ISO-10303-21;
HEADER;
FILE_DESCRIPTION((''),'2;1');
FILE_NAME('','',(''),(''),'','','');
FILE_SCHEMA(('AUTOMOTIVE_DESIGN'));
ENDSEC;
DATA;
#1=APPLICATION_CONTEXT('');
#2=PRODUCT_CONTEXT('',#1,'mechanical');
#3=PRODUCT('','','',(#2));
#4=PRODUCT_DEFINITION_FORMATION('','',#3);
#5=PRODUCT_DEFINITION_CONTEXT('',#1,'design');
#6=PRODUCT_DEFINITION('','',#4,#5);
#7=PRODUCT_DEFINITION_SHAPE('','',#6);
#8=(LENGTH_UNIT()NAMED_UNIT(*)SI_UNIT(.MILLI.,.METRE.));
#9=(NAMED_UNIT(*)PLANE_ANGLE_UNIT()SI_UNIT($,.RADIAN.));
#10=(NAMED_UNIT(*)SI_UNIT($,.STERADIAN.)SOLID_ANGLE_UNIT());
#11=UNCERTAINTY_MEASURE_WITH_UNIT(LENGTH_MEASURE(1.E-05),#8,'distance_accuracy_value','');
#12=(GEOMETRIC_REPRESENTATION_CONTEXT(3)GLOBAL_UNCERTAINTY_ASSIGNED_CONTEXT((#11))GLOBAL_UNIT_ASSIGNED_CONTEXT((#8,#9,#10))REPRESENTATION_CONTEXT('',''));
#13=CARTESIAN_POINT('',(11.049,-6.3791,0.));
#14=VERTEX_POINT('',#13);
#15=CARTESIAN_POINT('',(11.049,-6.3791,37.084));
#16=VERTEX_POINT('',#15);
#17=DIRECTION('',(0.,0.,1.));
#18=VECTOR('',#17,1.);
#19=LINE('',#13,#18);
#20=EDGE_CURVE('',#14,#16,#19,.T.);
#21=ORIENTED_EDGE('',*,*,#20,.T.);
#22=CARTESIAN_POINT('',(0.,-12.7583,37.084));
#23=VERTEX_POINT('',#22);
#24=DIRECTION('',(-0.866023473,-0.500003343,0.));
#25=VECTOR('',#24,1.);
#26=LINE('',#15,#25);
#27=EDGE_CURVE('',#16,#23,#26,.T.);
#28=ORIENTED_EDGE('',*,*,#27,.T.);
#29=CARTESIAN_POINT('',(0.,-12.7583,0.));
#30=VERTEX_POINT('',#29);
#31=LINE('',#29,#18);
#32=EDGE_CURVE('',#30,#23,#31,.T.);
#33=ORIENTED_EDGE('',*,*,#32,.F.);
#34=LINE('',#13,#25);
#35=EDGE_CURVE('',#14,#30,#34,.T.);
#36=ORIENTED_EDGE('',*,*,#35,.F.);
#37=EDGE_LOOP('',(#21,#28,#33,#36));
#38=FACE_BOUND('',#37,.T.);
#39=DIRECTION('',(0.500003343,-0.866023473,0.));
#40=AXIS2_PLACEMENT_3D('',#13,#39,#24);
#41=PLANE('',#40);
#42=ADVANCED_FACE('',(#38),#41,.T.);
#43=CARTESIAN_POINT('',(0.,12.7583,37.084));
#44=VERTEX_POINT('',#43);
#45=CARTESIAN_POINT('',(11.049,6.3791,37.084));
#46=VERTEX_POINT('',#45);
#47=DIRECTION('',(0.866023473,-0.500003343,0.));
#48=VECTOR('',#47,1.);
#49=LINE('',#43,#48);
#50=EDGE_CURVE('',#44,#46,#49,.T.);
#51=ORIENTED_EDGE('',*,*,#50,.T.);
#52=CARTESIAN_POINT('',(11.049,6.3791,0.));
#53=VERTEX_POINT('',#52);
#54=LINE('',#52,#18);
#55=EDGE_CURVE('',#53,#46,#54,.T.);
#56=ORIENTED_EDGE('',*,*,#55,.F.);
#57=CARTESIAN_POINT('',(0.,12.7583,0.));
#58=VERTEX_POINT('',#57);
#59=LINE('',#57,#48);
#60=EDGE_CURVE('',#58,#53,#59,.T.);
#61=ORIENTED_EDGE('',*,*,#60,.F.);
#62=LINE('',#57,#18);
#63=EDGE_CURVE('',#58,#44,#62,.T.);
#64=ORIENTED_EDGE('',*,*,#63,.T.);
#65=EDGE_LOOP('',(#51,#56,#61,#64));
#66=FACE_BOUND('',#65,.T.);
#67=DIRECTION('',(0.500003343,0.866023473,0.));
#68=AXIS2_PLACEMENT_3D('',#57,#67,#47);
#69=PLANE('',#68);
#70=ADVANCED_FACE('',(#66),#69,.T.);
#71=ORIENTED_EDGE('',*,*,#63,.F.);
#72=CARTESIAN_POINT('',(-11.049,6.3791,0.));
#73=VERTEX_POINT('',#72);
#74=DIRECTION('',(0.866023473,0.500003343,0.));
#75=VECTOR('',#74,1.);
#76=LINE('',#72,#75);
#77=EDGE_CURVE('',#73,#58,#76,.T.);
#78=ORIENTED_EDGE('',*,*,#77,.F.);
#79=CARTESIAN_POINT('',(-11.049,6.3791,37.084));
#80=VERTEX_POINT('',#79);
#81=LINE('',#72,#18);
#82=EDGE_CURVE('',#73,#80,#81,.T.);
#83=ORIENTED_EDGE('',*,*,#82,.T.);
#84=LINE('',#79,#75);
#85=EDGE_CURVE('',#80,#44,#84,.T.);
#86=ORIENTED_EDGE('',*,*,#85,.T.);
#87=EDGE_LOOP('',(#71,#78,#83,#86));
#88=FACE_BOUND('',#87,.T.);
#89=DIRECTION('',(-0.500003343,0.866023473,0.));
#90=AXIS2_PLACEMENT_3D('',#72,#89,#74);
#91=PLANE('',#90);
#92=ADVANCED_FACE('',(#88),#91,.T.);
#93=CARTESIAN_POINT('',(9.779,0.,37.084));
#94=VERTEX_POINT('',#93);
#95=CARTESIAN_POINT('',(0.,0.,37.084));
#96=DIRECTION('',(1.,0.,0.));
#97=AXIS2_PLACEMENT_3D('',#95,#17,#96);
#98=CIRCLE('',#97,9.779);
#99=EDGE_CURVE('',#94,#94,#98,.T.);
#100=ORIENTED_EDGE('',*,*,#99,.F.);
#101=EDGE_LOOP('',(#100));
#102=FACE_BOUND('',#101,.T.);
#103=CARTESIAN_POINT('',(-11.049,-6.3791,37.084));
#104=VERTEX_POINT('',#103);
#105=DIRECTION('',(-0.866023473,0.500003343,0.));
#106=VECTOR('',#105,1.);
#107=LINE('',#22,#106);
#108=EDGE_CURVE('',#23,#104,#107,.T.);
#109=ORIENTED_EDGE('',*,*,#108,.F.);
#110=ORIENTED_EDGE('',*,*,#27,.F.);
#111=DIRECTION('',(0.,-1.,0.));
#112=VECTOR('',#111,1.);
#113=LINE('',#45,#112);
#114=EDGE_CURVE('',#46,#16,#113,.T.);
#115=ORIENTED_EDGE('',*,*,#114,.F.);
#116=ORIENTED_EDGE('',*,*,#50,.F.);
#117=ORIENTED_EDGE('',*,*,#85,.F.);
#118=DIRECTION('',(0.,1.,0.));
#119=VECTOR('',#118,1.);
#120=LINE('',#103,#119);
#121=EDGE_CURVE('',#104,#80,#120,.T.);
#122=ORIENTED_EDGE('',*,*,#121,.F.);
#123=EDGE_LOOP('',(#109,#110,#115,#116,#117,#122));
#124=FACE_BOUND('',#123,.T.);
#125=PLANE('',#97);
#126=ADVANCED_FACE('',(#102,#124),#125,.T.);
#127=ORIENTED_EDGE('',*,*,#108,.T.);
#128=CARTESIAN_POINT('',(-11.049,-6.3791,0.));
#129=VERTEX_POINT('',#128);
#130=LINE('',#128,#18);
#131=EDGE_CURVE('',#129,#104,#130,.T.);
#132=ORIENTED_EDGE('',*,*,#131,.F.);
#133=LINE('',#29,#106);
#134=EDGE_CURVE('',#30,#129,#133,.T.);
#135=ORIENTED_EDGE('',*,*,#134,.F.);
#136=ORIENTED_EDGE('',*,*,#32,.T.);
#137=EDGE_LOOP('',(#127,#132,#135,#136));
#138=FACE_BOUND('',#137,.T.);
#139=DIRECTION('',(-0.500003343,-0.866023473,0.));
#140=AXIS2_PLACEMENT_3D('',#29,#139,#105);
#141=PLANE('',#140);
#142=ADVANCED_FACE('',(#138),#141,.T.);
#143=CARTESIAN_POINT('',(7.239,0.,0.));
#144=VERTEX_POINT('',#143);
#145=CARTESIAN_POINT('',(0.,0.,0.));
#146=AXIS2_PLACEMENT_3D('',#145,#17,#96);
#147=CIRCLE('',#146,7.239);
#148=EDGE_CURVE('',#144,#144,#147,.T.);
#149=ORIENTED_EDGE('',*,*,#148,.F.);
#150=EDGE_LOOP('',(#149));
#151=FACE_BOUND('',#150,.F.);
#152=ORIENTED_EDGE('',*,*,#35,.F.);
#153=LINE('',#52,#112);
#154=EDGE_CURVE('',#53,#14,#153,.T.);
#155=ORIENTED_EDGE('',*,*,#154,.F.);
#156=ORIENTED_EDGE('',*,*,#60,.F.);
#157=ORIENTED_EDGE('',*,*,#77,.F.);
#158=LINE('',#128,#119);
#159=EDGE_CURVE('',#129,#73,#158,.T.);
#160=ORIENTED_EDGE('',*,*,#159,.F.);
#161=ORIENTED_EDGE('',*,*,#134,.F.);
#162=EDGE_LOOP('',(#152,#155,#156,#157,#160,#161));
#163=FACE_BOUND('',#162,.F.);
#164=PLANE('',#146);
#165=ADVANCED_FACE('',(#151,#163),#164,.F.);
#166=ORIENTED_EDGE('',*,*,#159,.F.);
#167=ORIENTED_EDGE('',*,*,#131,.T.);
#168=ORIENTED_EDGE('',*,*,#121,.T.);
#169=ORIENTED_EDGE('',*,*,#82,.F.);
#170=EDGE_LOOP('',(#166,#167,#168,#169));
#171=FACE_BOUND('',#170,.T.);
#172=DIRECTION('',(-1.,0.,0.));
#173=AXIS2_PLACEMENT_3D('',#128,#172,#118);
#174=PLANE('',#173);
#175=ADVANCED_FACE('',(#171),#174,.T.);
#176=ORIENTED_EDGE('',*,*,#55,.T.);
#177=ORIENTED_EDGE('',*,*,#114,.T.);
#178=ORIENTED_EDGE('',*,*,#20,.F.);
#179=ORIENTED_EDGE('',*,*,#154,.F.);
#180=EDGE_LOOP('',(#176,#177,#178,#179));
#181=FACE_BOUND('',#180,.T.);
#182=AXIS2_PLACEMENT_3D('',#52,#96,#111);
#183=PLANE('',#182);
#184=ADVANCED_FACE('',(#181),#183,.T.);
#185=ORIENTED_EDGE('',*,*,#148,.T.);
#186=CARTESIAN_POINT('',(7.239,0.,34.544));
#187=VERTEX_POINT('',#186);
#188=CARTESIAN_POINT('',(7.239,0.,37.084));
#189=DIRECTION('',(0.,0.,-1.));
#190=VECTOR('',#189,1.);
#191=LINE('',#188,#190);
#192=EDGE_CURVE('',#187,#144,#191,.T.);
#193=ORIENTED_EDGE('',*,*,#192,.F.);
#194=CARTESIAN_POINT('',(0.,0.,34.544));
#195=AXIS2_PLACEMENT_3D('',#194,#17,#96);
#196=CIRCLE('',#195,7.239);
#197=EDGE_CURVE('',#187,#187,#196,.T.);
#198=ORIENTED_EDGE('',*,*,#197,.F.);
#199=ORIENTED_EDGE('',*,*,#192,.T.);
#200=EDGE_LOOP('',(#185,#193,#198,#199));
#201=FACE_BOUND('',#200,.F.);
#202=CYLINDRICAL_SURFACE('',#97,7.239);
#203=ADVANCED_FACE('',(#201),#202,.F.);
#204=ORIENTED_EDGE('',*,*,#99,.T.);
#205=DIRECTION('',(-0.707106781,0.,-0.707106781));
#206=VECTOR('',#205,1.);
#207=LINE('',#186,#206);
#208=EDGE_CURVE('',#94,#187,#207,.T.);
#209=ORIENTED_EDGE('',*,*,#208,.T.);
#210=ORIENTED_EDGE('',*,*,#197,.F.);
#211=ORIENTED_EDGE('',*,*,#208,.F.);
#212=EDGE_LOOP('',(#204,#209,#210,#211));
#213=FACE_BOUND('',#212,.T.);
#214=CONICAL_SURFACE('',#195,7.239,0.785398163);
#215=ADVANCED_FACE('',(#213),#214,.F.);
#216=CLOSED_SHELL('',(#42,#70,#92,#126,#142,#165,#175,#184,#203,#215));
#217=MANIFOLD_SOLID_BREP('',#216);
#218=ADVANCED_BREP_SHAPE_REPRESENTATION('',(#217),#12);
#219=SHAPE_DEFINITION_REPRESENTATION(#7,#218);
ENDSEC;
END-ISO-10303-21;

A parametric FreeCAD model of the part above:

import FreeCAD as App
import Part
import Sketcher
from FreeCAD import Vector
Q = App.Units.Quantity


def edges_at(feature, points):
    """Names of the edges that pass closest to the given points."""
    edges = feature.Shape.Edges
    near = lambda p: min(range(len(edges)), key=lambda i: edges[i].distToShape(Part.Vertex(*p))[0])
    return sorted({f"Edge{near(p) + 1}" for p in points})

doc = App.newDocument("Part")
body = doc.addObject("PartDesign::Body", "Body")

sketch1 = body.newObject("Sketcher::SketchObject", "Sketch")
sketch1.AttachmentSupport = (doc.getObject("XY_Plane"), [""])
sketch1.MapMode = "FlatFace"
sketch1.addGeometry([
    Part.LineSegment(Vector(11, 6, 0), Vector(0, 13, 0)),
    Part.LineSegment(Vector(0, 13, 0), Vector(-11, 6, 0)),
    Part.LineSegment(Vector(-11, 6, 0), Vector(-11, -6, 0)),
    Part.LineSegment(Vector(-11, -6, 0), Vector(0, -13, 0)),
    Part.LineSegment(Vector(0, -13, 0), Vector(11, -6, 0)),
    Part.LineSegment(Vector(11, -6, 0), Vector(11, 6, 0)),
], False)
sketch1.addConstraint([
    Sketcher.Constraint("Coincident", 0, 2, 1, 1),
    Sketcher.Constraint("Coincident", 1, 2, 2, 1),
    Sketcher.Constraint("Coincident", 2, 2, 3, 1),
    Sketcher.Constraint("Coincident", 3, 2, 4, 1),
    Sketcher.Constraint("Coincident", 4, 2, 5, 1),
    Sketcher.Constraint("Coincident", 5, 2, 0, 1),
    Sketcher.Constraint("Vertical", 2),
    Sketcher.Constraint("Vertical", 5),
    Sketcher.Constraint("Symmetric", 0, 2, 3, 2, -1, 1),
    Sketcher.Constraint("Symmetric", 1, 2, 4, 2, -1, 1),
    Sketcher.Constraint("PointOnObject", 0, 2, -2),
    Sketcher.Constraint("Parallel", 0, 3),
    Sketcher.Constraint("Horizontal", 2, 2, 4, 2),
    Sketcher.Constraint("DistanceX", 2, 2, 4, 2, Q("0.87 in")),
    Sketcher.Constraint("Angle", 0, Q("149.9998 deg")),
    Sketcher.Constraint("DistanceY", 2, 2, 2, 1, Q("0.5023 in")),
])
pad1 = body.newObject("PartDesign::Pad", "Pad")
pad1.Profile = sketch1
pad1.Length = Q("1.46 in")

sketch2 = body.newObject("Sketcher::SketchObject", "Sketch001")
sketch2.AttachmentSupport = (doc.getObject("XY_Plane"), [""])
sketch2.MapMode = "FlatFace"
sketch2.AttachmentOffset = App.Placement(Vector(0, 0, 1.46 * 25.4), App.Rotation())
sketch2.addGeometry(Part.Circle(Vector(0, 0, 0), Vector(0, 0, 1), 7), False)
sketch2.addConstraint([
    Sketcher.Constraint("Coincident", 0, 3, -1, 1),
    Sketcher.Constraint("Diameter", 0, Q("0.57 in")),
])
pocket1 = body.newObject("PartDesign::Pocket", "Pocket")
pocket1.Profile = sketch2
pocket1.Length = Q("1.46 in")
doc.recompute()

chamfer = body.newObject("PartDesign::Chamfer", "Chamfer")
chamfer.Base = (pocket1, edges_at(pocket1, [(-7.239, 0, 37.084)]))
chamfer.Size = Q("0.1 in")

doc.recompute()
